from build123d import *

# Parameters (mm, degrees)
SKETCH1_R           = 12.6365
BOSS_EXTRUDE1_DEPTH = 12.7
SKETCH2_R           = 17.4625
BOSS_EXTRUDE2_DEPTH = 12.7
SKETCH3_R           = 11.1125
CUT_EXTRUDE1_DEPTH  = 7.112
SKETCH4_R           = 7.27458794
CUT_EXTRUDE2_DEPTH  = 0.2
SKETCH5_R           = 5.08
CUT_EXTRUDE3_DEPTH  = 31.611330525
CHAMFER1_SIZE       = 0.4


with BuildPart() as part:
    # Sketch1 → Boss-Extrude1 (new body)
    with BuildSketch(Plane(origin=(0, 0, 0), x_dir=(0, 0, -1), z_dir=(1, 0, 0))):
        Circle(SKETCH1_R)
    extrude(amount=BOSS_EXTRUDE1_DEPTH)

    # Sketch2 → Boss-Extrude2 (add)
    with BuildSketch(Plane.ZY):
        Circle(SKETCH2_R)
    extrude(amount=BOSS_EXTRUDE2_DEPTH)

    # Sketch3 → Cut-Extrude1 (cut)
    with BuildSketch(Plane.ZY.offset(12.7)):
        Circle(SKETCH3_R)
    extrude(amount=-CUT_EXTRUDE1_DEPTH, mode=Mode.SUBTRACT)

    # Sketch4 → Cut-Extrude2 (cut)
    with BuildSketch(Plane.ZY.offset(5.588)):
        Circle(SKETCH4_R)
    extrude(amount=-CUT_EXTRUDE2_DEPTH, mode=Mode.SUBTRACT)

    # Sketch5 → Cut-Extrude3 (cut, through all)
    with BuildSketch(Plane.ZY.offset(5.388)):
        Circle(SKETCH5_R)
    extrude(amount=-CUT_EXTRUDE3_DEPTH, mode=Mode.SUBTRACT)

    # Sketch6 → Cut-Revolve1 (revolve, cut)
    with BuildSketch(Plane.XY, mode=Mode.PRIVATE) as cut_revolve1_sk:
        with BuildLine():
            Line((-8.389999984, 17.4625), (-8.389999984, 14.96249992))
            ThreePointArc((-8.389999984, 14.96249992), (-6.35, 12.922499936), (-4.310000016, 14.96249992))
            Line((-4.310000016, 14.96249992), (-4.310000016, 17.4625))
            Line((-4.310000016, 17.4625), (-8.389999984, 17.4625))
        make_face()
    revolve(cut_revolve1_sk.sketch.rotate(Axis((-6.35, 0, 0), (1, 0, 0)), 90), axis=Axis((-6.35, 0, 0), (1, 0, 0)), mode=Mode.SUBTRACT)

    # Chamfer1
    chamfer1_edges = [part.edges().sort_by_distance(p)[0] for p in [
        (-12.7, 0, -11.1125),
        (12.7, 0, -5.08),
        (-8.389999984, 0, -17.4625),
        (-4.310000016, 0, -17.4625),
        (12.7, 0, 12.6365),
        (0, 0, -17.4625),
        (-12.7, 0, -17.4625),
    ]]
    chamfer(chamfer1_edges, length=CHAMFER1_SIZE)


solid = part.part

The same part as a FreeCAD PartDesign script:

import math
import FreeCAD as App
import Part
import Sketcher

V = App.Vector
Q = App.Units.Quantity


def edges_at(feature, points):
    """Names of the edges that pass closest to the given points."""
    edges = feature.Shape.Edges
    near = lambda p: min(range(len(edges)), key=lambda i: edges[i].distToShape(Part.Vertex(*p))[0])
    return sorted({f"Edge{near(p) + 1}" for p in points})

doc = App.newDocument("Part")
body = doc.addObject("PartDesign::Body", "Body")

sketch1 = body.newObject("Sketcher::SketchObject", "Sketch")
sketch1.AttachmentSupport = (doc.getObject("YZ_Plane"), [""])
sketch1.MapMode = "FlatFace"
sketch1.addGeometry(Part.Circle(V(0, 0, 0), V(0, 0, 1), 13), False)
sketch1.addConstraint([
    Sketcher.Constraint("Coincident", 0, 3, -1, 1),
    Sketcher.Constraint("Diameter", 0, Q("0.995 in")),
])
pad1 = body.newObject("PartDesign::Pad", "Pad")
pad1.Profile = sketch1
pad1.Length = Q("0.5 in")

sketch2 = body.newObject("Sketcher::SketchObject", "Sketch001")
sketch2.AttachmentSupport = (doc.getObject("YZ_Plane"), [""])
sketch2.MapMode = "FlatFace"
sketch2.addGeometry(Part.Circle(V(0, 0, 0), V(0, 0, 1), 17), False)
sketch2.addConstraint([
    Sketcher.Constraint("Coincident", 0, 3, -1, 1),
    Sketcher.Constraint("Diameter", 0, Q("1.375 in")),
])
pad2 = body.newObject("PartDesign::Pad", "Pad001")
pad2.Profile = sketch2
pad2.Length = Q("0.5 in")
pad2.Reversed = True

sketch3 = body.newObject("Sketcher::SketchObject", "Sketch002")
sketch3.AttachmentSupport = (doc.getObject("YZ_Plane"), [""])
sketch3.MapMode = "FlatFace"
sketch3.AttachmentOffset = App.Placement(V(0, 0, -0.5 * 25.4), App.Rotation())
sketch3.addGeometry(Part.Circle(V(0, 0, 0), V(0, 0, 1), 11), False)
sketch3.addConstraint([
    Sketcher.Constraint("Coincident", 0, 3, -1, 1),
    Sketcher.Constraint("Diameter", 0, Q("0.875 in")),
])
pocket1 = body.newObject("PartDesign::Pocket", "Pocket")
pocket1.Profile = sketch3
pocket1.Length = Q("0.28 in")
pocket1.Reversed = True

sketch4 = body.newObject("Sketcher::SketchObject", "Sketch003")
sketch4.AttachmentSupport = (doc.getObject("YZ_Plane"), [""])
sketch4.MapMode = "FlatFace"
sketch4.AttachmentOffset = App.Placement(V(0, 0, -0.22 * 25.4), App.Rotation())
sketch4.addGeometry(Part.Circle(V(0, 0, 0), V(0, 0, 1), 7), False)
sketch4.addConstraint([
    Sketcher.Constraint("Coincident", 0, 3, -1, 1),
    Sketcher.Constraint("Diameter", 0, 14.549176),
])
pocket2 = body.newObject("PartDesign::Pocket", "Pocket001")
pocket2.Profile = sketch4
pocket2.Length = 0.2
pocket2.Reversed = True

sketch5 = body.newObject("Sketcher::SketchObject", "Sketch004")
sketch5.AttachmentSupport = (doc.getObject("YZ_Plane"), [""])
sketch5.MapMode = "FlatFace"
sketch5.AttachmentOffset = App.Placement(V(0, 0, -5.388), App.Rotation())
sketch5.addGeometry(Part.Circle(V(0, 0, 0), V(0, 0, 1), 5), False)
sketch5.addConstraint([
    Sketcher.Constraint("Coincident", 0, 3, -1, 1),
    Sketcher.Constraint("Diameter", 0, Q("0.4 in")),
])
pocket3 = body.newObject("PartDesign::Pocket", "Pocket002")
pocket3.Profile = sketch5
pocket3.Type = "ThroughAll"
pocket3.Reversed = True

sketch6 = body.newObject("Sketcher::SketchObject", "Sketch005")
sketch6.AttachmentSupport = (doc.getObject("XY_Plane"), [""])
sketch6.MapMode = "FlatFace"
sketch6.addGeometry([
    Part.LineSegment(V(-8.4, 17.5, 0), V(-8.4, 15, 0)),
    Part.ArcOfCircle(Part.Circle(V(-6.3, 15, 0), V(0, 0, 1), 2), math.radians(180), math.radians(360)),
    Part.LineSegment(V(-4.3, 15, 0), V(-4.3, 17.5, 0)),
    Part.LineSegment(V(-4.3, 17.5, 0), V(-8.4, 17.5, 0)),
], False)
sketch6.addConstraint([
    Sketcher.Constraint("Tangent", 0, 2, 1, 1),
    Sketcher.Constraint("Tangent", 1, 2, 2, 1),
    Sketcher.Constraint("Coincident", 2, 2, 3, 1),
    Sketcher.Constraint("Coincident", 3, 2, 0, 1),
    Sketcher.Constraint("Vertical", 0),
    Sketcher.Constraint("Vertical", 2),
    Sketcher.Constraint("Horizontal", 3),
    Sketcher.Constraint("DistanceX", 1, 3, -1, 1, Q("0.25 in")),
    Sketcher.Constraint("Radius", 1, 2.04),
    Sketcher.Constraint("DistanceY", -1, 1, 2, 2, Q("0.6875 in")),
    Sketcher.Constraint("DistanceY", 0, 2, 0, 1, 2.5),
])
groove = body.newObject("PartDesign::Groove", "Groove")
groove.Profile = sketch6
groove.ReferenceAxis = (sketch6, ["H_Axis"])
groove.Angle = 360
doc.recompute()

chamfer = body.newObject("PartDesign::Chamfer", "Chamfer")
chamfer.Base = (groove, edges_at(groove, [
    (-12.7, 0, -11.113),
    (12.7, 0, -5.08),
    (-8.39, 0, -17.462),
    (-4.31, 0, -17.462),
    (12.7, 0, 12.636),
    (0, 0, -17.462),
    (-12.7, 0, -17.462),
]))
chamfer.Size = 0.4

doc.recompute()
